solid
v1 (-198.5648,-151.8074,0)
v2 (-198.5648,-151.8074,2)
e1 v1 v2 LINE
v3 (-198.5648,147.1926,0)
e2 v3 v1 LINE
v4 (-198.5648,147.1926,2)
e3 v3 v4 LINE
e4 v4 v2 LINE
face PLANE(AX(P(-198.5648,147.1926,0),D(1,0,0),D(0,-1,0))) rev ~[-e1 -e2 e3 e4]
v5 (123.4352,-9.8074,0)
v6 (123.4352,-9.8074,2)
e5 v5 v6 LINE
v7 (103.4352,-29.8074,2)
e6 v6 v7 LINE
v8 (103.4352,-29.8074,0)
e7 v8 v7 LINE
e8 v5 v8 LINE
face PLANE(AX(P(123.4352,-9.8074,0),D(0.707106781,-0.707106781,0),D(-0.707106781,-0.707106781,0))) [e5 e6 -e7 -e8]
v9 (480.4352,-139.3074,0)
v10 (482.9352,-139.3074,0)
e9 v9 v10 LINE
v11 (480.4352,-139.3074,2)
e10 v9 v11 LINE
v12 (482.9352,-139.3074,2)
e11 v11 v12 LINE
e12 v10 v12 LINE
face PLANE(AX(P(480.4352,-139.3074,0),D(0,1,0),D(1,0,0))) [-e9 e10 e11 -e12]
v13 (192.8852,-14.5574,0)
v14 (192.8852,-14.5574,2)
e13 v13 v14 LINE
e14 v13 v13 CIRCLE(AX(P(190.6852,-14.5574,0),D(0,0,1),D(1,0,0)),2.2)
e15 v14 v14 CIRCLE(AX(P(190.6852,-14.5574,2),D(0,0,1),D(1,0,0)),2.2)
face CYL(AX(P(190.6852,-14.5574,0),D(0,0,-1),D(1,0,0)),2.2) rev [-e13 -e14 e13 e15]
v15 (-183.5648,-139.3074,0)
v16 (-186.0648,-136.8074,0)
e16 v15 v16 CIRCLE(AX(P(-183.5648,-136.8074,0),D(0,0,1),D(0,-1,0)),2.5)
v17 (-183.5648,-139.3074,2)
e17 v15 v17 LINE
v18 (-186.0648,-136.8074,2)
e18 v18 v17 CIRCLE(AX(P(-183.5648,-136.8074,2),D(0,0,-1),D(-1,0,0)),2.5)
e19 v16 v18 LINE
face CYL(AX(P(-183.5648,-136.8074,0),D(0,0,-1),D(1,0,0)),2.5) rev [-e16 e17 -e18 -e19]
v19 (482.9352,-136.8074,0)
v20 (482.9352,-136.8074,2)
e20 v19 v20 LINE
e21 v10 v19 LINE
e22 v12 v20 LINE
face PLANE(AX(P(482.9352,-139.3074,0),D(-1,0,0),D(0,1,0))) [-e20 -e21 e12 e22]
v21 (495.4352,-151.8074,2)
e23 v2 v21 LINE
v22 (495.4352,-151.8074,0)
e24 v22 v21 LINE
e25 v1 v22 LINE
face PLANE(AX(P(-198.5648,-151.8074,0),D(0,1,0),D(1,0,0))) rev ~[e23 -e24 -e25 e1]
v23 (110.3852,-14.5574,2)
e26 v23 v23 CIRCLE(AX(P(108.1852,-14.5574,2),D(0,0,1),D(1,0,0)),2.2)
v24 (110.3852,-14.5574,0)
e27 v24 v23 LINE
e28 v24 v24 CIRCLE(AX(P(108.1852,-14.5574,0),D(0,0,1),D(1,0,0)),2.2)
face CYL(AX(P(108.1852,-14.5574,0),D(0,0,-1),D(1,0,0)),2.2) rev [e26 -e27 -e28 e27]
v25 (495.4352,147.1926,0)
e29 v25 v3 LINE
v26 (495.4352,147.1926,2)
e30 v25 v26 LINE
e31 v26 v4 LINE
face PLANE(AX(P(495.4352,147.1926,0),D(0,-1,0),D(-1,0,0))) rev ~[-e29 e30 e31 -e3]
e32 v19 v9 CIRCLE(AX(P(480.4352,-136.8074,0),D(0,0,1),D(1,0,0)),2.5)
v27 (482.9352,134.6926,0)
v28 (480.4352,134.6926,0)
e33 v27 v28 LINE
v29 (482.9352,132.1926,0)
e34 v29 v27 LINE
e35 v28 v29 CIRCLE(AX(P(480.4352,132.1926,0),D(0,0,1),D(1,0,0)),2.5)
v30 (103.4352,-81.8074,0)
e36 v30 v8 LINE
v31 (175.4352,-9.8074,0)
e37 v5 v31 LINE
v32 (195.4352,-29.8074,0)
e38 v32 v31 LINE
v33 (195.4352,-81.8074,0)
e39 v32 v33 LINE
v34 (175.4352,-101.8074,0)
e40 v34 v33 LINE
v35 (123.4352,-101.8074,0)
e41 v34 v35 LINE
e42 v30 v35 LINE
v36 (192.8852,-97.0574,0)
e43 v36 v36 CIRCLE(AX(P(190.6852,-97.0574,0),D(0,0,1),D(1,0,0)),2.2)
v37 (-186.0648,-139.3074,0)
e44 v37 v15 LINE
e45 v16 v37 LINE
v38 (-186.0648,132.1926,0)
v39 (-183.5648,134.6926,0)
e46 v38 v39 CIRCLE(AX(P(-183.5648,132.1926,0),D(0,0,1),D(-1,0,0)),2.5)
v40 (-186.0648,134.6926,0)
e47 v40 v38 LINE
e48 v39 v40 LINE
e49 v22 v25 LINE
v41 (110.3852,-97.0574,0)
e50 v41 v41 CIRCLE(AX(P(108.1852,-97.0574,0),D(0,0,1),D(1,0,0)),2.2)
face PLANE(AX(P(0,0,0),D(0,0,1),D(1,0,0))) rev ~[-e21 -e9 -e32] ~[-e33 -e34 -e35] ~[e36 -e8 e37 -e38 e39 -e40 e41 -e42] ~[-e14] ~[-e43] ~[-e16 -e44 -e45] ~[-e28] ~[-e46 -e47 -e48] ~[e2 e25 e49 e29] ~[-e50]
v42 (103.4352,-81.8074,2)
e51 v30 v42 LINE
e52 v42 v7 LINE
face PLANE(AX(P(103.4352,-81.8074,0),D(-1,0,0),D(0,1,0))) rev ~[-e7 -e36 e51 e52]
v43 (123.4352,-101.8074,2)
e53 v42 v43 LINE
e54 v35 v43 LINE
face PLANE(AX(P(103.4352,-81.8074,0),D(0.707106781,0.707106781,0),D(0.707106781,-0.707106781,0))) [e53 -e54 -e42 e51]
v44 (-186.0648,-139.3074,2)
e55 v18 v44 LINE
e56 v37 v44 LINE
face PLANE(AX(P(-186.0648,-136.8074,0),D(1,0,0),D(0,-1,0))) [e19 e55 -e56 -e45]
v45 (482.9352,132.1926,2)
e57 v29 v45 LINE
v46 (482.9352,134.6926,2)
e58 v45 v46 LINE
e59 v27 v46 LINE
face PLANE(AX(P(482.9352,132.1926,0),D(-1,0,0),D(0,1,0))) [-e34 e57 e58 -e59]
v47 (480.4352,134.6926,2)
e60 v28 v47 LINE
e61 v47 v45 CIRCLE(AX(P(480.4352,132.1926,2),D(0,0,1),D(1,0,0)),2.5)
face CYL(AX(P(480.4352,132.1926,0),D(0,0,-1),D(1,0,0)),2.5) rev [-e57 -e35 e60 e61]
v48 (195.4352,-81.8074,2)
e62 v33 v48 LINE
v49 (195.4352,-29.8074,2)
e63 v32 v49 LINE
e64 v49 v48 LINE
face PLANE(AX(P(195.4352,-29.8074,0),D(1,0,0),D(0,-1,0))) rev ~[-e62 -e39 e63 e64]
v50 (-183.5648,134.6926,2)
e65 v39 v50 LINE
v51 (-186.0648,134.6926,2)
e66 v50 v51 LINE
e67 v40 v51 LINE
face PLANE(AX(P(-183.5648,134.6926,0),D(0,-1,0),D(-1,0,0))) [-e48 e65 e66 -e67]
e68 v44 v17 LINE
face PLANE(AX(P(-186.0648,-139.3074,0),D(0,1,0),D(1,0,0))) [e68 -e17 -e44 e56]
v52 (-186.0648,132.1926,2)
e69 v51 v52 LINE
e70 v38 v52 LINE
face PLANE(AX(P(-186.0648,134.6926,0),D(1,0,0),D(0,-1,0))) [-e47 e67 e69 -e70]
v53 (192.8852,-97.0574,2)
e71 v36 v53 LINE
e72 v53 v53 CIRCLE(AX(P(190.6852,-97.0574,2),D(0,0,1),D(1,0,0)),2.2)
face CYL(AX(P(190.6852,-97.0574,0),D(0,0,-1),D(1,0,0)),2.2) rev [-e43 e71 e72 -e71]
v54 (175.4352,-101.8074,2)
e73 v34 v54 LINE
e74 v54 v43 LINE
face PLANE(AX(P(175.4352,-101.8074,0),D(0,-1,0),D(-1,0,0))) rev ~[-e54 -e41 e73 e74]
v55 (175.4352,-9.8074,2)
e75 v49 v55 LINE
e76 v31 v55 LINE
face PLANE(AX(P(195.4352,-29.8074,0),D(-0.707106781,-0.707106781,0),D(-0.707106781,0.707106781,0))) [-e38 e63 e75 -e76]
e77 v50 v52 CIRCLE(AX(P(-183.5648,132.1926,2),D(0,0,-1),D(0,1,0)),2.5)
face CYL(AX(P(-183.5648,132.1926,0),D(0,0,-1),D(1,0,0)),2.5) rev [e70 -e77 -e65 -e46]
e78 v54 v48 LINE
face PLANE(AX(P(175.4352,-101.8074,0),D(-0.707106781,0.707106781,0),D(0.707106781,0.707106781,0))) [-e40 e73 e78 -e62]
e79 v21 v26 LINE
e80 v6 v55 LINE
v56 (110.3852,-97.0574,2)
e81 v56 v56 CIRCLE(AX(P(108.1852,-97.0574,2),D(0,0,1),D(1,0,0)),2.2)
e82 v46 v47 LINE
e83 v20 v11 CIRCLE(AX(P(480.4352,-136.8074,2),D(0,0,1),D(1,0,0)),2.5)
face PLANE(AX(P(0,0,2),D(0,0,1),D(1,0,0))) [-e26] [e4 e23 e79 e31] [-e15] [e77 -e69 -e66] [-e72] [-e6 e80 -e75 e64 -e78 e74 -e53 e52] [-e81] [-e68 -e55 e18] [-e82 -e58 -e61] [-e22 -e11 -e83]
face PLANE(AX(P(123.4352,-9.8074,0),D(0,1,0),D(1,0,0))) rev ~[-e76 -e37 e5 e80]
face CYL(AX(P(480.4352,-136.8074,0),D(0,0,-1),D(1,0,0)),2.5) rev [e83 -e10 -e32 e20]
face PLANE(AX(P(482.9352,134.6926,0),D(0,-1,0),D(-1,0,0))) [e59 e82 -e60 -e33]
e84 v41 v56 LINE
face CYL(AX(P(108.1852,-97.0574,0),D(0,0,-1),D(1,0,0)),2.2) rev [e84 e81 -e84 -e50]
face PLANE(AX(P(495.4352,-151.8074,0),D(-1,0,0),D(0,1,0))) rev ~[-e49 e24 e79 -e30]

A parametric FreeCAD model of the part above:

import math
import FreeCAD as App
import Part
import Sketcher
Q = App.Units.Quantity


def add_polygon(sketch, points):
    """Adds a closed chain of lines whose ends are joined by coincident constraints."""
    first, n = sketch.GeometryCount, len(points)
    for a, b in zip(points, points[1:] + points[:1]):
        sketch.addGeometry(Part.LineSegment(App.Vector(*a, 0), App.Vector(*b, 0)), False)
    for i in range(n):
        sketch.addConstraint(Sketcher.Constraint("Coincident", first + i, 2, first + (i + 1) % n, 1))

doc = App.newDocument("Part")
body = doc.addObject("PartDesign::Body", "Body")

# Sketch on XY plane
sketch1 = doc.addObject("Sketcher::SketchObject", "Sketch")
body.addObject(sketch1)
sketch1.AttachmentSupport = (doc.XY_Plane, [""])
sketch1.MapMode = "FlatFace"
add_polygon(sketch1, [(-198.6, 147.2), (-198.6, -151.8), (495.4, -151.8), (495.4, 147.2)])  # lines 0-3
sketch1.addGeometry(Part.LineSegment(App.Vector(-183.6, -139.3, 0), App.Vector(-186.1, -139.3, 0)), False)  # 4
sketch1.addGeometry(Part.LineSegment(App.Vector(-186.1, -139.3, 0), App.Vector(-186.1, -136.8, 0)), False)  # 5
sketch1.addGeometry(Part.ArcOfCircle(Part.Circle(App.Vector(-183.6, -136.8, 0), App.Vector(0, 0, 1), 2.5), math.radians(-90), math.radians(180)), False)  # 6
sketch1.addGeometry(Part.LineSegment(App.Vector(482.9, -139.3, 0), App.Vector(480.4, -139.3, 0)), False)  # 7
sketch1.addGeometry(Part.ArcOfCircle(Part.Circle(App.Vector(480.4, -136.8, 0), App.Vector(0, 0, 1), 2.5), math.radians(0), math.radians(270)), False)  # 8
sketch1.addGeometry(Part.LineSegment(App.Vector(482.9, -136.8, 0), App.Vector(482.9, -139.3, 0)), False)  # 9
sketch1.addGeometry(Part.LineSegment(App.Vector(482.9, 134.7, 0), App.Vector(482.9, 132.2, 0)), False)  # 10
sketch1.addGeometry(Part.ArcOfCircle(Part.Circle(App.Vector(480.4, 132.2, 0), App.Vector(0, 0, 1), 2.5), math.radians(90), math.radians(360)), False)  # 11
sketch1.addGeometry(Part.LineSegment(App.Vector(480.4, 134.7, 0), App.Vector(482.9, 134.7, 0)), False)  # 12
sketch1.addGeometry(Part.LineSegment(App.Vector(-186.1, 134.7, 0), App.Vector(-183.6, 134.7, 0)), False)  # 13
sketch1.addGeometry(Part.ArcOfCircle(Part.Circle(App.Vector(-183.6, 132.2, 0), App.Vector(0, 0, 1), 2.5), math.radians(180), math.radians(450)), False)  # 14
sketch1.addGeometry(Part.LineSegment(App.Vector(-186.1, 132.2, 0), App.Vector(-186.1, 134.7, 0)), False)  # 15
add_polygon(sketch1, [(195.4, -29.8), (195.4, -81.8), (175.4, -101.8), (123.4, -101.8), (103.4, -81.8), (103.4, -29.8), (123.4, -9.8), (175.4, -9.8)])  # lines 16-23
sketch1.addGeometry(Part.Circle(App.Vector(190.7, -14.6, 0), App.Vector(0, 0, 1), 2.2), False)  # 24
sketch1.addGeometry(Part.Circle(App.Vector(108.2, -97.1, 0), App.Vector(0, 0, 1), 2.2), False)  # 25
sketch1.addGeometry(Part.Circle(App.Vector(108.2, -14.6, 0), App.Vector(0, 0, 1), 2.2), False)  # 26
sketch1.addGeometry(Part.Circle(App.Vector(190.7, -97.1, 0), App.Vector(0, 0, 1), 2.2), False)  # 27
sketch1.addConstraint([
    Sketcher.Constraint("Coincident", 4, 2, 5, 1),
    Sketcher.Constraint("Tangent", 5, 2, 6, 2),
    Sketcher.Constraint("Tangent", 6, 1, 4, 1),
    Sketcher.Constraint("Tangent", 7, 2, 8, 2),
    Sketcher.Constraint("Tangent", 8, 1, 9, 1),
    Sketcher.Constraint("Coincident", 9, 2, 7, 1),
    Sketcher.Constraint("Tangent", 10, 2, 11, 2),
    Sketcher.Constraint("Tangent", 11, 1, 12, 1),
    Sketcher.Constraint("Coincident", 12, 2, 10, 1),
    Sketcher.Constraint("Tangent", 13, 2, 14, 2),
    Sketcher.Constraint("Tangent", 14, 1, 15, 1),
    Sketcher.Constraint("Coincident", 15, 2, 13, 1),
    Sketcher.Constraint("Vertical", 0),
    Sketcher.Constraint("Horizontal", 1),
    Sketcher.Constraint("Vertical", 2),
    Sketcher.Constraint("Horizontal", 3),
    Sketcher.Constraint("Horizontal", 4),
    Sketcher.Constraint("Vertical", 5),
    Sketcher.Constraint("Horizontal", 7),
    Sketcher.Constraint("Vertical", 9),
    Sketcher.Constraint("Vertical", 10),
    Sketcher.Constraint("Horizontal", 12),
    Sketcher.Constraint("Horizontal", 13),
    Sketcher.Constraint("Vertical", 15),
    Sketcher.Constraint("Vertical", 16),
    Sketcher.Constraint("Horizontal", 18),
    Sketcher.Constraint("Vertical", 20),
    Sketcher.Constraint("Horizontal", 22),
    Sketcher.Constraint("Equal", 6, 8),
    Sketcher.Constraint("Equal", 8, 11),
    Sketcher.Constraint("Equal", 11, 14),
    Sketcher.Constraint("Equal", 24, 25),
    Sketcher.Constraint("Equal", 25, 26),
    Sketcher.Constraint("Equal", 26, 27),
    Sketcher.Constraint("Perpendicular", 17, 19),
    Sketcher.Constraint("Perpendicular", 19, 21),
    Sketcher.Constraint("Perpendicular", 21, 23),
    Sketcher.Constraint("Horizontal", 6, 3, 8, 3),
    Sketcher.Constraint("Horizontal", 11, 3, 14, 3),
    Sketcher.Constraint("Horizontal", 24, 3, 26, 3),
    Sketcher.Constraint("Horizontal", 25, 3, 27, 3),
    Sketcher.Constraint("Horizontal", 16, 2, 19, 2),
    Sketcher.Constraint("Horizontal", 20, 2, 23, 2),
    Sketcher.Constraint("Vertical", 8, 3, 11, 3),
    Sketcher.Constraint("Vertical", 6, 3, 14, 3),
    Sketcher.Constraint("Vertical", 25, 3, 26, 3),
    Sketcher.Constraint("Vertical", 24, 3, 27, 3),
    Sketcher.Constraint("Vertical", 18, 2, 21, 2),
    Sketcher.Constraint("Vertical", 17, 2, 22, 2),
    Sketcher.Constraint("Equal", 22, 16),
    Sketcher.Constraint("Diameter", 24, Q("4.4 mm")),
    Sketcher.Constraint("Radius", 6, Q("2.5 mm")),
    Sketcher.Constraint("DistanceX", 1, 1, 1, 2, Q("694 mm")),
    Sketcher.Constraint("DistanceY", 0, 2, 0, 1, Q("299 mm")),
    Sketcher.Constraint("DistanceX", 17, 2, 16, 2, Q("20 mm")),
    Sketcher.Constraint("DistanceX", 0, 2, 4, 2, Q("12.5 mm")),
    Sketcher.Constraint("DistanceY", 0, 2, 4, 2, Q("12.5 mm")),
    Sketcher.Constraint("DistanceX", 8, 1, 1, 2, Q("12.5 mm")),
    Sketcher.Constraint("DistanceY", 11, 1, 2, 2, Q("12.5 mm")),
    Sketcher.Constraint("DistanceX", 18, 2, 18, 1, Q("52 mm")),
    Sketcher.Constraint("DistanceX", 27, 3, 16, 2, Q("4.75 mm")),
    Sketcher.Constraint("DistanceY", 17, 2, 27, 3, Q("4.75 mm")),
    Sketcher.Constraint("DistanceX", 19, 2, 25, 3, Q("4.75 mm")),
    Sketcher.Constraint("DistanceY", 26, 3, 21, 2, Q("4.75 mm")),
    Sketcher.Constraint("DistanceX", 16, 2, 8, 3, Q("285 mm")),
    Sketcher.Constraint("DistanceY", 8, 3, 16, 2, Q("55 mm")),
    Sketcher.Constraint("DistanceX", 6, 3, -1, 1, Q("183.5648 mm")),
    Sketcher.Constraint("DistanceY", 6, 3, -1, 1, Q("136.8074 mm")),
])
pad1 = doc.addObject("PartDesign::Pad", "Pad")
body.addObject(pad1)
pad1.Profile = sketch1
pad1.Length = 2

doc.recompute()
